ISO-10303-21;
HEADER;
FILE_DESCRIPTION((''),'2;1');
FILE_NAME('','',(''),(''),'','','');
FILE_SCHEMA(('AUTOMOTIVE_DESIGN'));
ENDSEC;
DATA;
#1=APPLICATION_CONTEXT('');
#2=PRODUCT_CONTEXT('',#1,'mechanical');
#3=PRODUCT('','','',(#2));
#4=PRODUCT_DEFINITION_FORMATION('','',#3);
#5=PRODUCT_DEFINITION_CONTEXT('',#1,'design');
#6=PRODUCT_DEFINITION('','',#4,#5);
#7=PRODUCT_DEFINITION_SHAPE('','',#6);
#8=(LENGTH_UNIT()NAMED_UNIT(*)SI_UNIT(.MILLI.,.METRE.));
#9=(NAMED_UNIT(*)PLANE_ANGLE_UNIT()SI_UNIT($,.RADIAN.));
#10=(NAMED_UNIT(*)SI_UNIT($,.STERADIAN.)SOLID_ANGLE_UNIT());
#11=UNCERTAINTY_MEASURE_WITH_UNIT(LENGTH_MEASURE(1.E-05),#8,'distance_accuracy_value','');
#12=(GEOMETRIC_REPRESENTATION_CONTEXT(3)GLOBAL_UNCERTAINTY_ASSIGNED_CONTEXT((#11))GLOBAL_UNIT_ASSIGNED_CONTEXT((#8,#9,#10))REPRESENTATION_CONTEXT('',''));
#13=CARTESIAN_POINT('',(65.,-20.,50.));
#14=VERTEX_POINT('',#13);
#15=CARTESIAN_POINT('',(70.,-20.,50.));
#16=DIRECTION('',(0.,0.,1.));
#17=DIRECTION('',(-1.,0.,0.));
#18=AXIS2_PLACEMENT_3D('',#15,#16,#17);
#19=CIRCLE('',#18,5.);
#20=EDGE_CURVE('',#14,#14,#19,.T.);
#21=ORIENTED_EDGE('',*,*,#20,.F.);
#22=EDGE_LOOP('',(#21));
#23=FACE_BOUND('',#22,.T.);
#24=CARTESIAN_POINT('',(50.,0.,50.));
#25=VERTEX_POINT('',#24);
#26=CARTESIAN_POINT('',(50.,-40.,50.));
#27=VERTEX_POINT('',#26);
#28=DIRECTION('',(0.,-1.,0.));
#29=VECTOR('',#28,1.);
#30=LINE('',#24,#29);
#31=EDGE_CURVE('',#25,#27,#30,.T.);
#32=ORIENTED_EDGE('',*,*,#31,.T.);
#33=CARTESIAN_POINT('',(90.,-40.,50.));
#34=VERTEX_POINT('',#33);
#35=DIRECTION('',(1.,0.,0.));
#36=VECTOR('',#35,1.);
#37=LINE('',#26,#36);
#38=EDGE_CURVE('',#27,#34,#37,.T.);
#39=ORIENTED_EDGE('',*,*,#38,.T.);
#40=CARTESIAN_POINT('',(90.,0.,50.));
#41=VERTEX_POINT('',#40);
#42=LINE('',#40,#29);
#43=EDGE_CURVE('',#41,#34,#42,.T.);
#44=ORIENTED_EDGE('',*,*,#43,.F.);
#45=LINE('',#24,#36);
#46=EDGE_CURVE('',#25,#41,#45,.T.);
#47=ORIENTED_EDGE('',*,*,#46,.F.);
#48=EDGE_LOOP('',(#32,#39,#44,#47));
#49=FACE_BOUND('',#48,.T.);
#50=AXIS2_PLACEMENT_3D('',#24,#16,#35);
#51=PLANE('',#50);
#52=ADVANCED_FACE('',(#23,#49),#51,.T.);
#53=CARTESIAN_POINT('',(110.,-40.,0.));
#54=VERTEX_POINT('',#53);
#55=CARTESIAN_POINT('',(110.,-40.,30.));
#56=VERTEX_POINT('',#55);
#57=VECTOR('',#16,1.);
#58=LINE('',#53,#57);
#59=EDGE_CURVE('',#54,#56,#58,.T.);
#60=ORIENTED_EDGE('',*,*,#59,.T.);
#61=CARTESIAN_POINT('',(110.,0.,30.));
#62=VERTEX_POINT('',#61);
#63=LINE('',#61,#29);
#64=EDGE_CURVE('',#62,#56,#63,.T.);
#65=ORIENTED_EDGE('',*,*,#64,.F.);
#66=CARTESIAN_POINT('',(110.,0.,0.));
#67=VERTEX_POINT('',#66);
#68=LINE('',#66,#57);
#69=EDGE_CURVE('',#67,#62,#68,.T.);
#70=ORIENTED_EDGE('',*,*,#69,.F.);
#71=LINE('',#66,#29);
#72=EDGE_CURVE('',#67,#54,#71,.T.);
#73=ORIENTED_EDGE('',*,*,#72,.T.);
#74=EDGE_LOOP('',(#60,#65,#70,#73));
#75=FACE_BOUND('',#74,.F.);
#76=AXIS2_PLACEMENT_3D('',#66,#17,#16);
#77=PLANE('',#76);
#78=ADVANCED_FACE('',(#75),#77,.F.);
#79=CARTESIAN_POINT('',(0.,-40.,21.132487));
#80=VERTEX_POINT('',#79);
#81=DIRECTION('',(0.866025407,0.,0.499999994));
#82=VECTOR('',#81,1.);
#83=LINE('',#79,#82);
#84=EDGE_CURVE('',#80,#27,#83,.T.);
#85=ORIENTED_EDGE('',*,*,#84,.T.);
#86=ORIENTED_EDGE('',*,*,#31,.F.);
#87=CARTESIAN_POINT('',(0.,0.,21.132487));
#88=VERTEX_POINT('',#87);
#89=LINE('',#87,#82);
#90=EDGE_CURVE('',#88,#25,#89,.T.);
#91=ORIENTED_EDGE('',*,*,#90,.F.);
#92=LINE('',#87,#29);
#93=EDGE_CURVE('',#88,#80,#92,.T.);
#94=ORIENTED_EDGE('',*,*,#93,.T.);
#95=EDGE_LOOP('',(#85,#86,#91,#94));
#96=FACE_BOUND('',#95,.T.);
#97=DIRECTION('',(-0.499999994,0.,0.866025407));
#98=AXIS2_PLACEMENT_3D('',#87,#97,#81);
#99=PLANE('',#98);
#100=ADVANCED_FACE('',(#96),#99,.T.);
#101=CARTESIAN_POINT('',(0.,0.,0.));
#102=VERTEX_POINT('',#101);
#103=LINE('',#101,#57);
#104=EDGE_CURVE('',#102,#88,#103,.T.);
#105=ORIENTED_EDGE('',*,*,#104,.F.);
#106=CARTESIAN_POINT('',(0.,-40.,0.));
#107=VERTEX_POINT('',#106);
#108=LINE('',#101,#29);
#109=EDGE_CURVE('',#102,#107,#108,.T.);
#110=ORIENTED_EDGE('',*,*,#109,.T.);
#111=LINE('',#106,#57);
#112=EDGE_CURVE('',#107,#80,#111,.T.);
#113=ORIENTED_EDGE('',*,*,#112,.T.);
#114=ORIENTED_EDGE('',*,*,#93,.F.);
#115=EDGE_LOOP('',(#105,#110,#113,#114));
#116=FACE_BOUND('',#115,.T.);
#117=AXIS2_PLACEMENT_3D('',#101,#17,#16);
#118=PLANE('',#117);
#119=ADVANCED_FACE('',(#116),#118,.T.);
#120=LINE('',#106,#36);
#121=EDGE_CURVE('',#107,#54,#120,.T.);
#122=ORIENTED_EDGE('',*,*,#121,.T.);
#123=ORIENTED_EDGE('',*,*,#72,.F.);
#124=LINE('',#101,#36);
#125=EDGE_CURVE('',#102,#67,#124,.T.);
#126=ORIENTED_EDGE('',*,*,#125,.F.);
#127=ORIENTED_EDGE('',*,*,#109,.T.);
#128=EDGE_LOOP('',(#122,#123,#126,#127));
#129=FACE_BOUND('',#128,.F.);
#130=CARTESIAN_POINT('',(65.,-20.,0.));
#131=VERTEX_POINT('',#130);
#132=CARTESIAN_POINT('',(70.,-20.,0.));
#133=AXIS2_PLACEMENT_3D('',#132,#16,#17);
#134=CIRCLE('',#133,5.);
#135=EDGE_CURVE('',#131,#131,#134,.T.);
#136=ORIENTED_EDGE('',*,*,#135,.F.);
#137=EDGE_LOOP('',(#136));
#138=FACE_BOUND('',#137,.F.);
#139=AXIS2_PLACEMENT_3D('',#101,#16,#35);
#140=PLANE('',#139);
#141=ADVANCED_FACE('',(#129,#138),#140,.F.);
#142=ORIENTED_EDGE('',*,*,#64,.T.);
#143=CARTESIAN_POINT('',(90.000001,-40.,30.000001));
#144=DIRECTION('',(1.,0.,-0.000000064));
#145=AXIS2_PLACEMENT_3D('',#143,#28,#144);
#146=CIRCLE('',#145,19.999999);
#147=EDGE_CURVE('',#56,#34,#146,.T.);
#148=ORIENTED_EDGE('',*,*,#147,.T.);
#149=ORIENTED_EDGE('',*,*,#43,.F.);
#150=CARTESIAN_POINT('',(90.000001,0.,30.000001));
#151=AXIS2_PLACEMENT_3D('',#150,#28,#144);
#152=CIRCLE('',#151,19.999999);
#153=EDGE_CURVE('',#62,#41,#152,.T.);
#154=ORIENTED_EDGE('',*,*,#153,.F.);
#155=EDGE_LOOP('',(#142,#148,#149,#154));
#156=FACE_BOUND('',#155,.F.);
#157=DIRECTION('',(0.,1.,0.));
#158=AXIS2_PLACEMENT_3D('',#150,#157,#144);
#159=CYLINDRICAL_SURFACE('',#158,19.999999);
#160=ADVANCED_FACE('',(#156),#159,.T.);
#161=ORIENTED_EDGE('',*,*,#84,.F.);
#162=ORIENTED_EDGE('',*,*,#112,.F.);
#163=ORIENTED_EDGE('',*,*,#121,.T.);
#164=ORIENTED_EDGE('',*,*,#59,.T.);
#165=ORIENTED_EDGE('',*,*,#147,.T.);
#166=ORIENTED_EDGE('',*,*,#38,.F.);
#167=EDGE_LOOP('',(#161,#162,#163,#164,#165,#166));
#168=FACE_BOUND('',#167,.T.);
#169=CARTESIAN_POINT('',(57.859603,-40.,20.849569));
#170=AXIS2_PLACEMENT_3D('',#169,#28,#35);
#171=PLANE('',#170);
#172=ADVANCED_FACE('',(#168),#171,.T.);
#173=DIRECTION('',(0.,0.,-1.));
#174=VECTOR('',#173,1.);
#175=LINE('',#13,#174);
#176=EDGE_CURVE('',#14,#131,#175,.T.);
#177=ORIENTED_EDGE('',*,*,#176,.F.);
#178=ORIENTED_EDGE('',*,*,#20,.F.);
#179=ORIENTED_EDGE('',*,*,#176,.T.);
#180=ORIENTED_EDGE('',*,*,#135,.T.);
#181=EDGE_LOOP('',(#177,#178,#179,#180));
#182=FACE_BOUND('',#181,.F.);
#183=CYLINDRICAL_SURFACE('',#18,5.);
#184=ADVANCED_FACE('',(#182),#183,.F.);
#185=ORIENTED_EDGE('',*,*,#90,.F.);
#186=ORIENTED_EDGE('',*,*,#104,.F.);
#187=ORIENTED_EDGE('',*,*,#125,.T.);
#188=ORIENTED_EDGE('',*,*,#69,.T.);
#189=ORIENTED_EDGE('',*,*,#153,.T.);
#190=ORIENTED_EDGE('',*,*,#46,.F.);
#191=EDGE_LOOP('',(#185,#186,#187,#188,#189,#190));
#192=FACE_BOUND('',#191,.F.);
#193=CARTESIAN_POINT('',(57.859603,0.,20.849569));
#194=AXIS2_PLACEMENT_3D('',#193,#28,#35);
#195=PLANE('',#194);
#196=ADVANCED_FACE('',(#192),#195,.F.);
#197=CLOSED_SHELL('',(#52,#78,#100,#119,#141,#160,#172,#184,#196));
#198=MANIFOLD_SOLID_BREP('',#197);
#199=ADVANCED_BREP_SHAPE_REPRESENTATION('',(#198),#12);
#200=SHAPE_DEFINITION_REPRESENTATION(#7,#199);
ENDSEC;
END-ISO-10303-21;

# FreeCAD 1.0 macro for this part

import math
import FreeCAD as App
import Part
import Sketcher

V = App.Vector
Q = App.Units.Quantity

doc = App.newDocument("Part")
body = doc.addObject("PartDesign::Body", "Body")

# Sketch on XZ plane
sketch1 = doc.addObject("Sketcher::SketchObject", "Sketch")
body.addObject(sketch1)
sketch1.AttachmentSupport = (doc.XZ_Plane, [""])
sketch1.MapMode = "FlatFace"
sketch1.addGeometry([
    Part.LineSegment(V(0, 0, 0), V(110, 0, 0)),  # 0
    Part.LineSegment(V(110, 0, 0), V(110, 30, 0)),  # 1
    Part.ArcOfCircle(Part.Circle(V(90, 30, 0), V(0, 0, 1), 20), math.radians(0), math.radians(90)),  # 2
    Part.LineSegment(V(90, 50, 0), V(50, 50, 0)),  # 3
    Part.LineSegment(V(50, 50, 0), V(0, 21, 0)),  # 4
    Part.LineSegment(V(0, 21, 0), V(0, 0, 0)),  # 5
], False)
sketch1.addConstraint([
    Sketcher.Constraint("Coincident", 0, 2, 1, 1),
    Sketcher.Constraint("Tangent", 1, 2, 2, 1),
    Sketcher.Constraint("Tangent", 2, 2, 3, 1),
    Sketcher.Constraint("Coincident", 3, 2, 4, 1),
    Sketcher.Constraint("Coincident", 4, 2, 5, 1),
    Sketcher.Constraint("Coincident", 5, 2, 0, 1),
    Sketcher.Constraint("Horizontal", 0),
    Sketcher.Constraint("Vertical", 1),
    Sketcher.Constraint("Horizontal", 3),
    Sketcher.Constraint("Vertical", 5),
    Sketcher.Constraint("Coincident", 5, 2, -1, 1),
    Sketcher.Constraint("Radius", 2, 19.999999),
    Sketcher.Constraint("DistanceX", 0, 1, 0, 2, 110.0),
    Sketcher.Constraint("DistanceX", 3, 2, 3, 1, 40.0),
    Sketcher.Constraint("DistanceY", 1, 1, 1, 2, 30.0),
    Sketcher.Constraint("Angle", 4, Q("-150 deg")),
])
pad1 = doc.addObject("PartDesign::Pad", "Pad")
body.addObject(pad1)
pad1.Profile = sketch1
pad1.Length = 40

# Sketch on XY plane
sketch2 = doc.addObject("Sketcher::SketchObject", "Sketch001")
body.addObject(sketch2)
sketch2.AttachmentSupport = (doc.XY_Plane, [""])
sketch2.MapMode = "FlatFace"
sketch2.AttachmentOffset = App.Placement(V(0, 0, 50), App.Rotation())
sketch2.addGeometry(Part.Circle(V(70, -20, 0), V(0, 0, 1), 5), False)
sketch2.addConstraint([
    Sketcher.Constraint("Diameter", 0, 10.0),
    Sketcher.Constraint("DistanceX", -1, 1, 0, 3, 70.0),
    Sketcher.Constraint("DistanceY", 0, 3, -1, 1, 20.0),
])
pocket1 = doc.addObject("PartDesign::Pocket", "Pocket")
body.addObject(pocket1)
pocket1.Profile = sketch2
pocket1.Type = "ThroughAll"

doc.recompute()
